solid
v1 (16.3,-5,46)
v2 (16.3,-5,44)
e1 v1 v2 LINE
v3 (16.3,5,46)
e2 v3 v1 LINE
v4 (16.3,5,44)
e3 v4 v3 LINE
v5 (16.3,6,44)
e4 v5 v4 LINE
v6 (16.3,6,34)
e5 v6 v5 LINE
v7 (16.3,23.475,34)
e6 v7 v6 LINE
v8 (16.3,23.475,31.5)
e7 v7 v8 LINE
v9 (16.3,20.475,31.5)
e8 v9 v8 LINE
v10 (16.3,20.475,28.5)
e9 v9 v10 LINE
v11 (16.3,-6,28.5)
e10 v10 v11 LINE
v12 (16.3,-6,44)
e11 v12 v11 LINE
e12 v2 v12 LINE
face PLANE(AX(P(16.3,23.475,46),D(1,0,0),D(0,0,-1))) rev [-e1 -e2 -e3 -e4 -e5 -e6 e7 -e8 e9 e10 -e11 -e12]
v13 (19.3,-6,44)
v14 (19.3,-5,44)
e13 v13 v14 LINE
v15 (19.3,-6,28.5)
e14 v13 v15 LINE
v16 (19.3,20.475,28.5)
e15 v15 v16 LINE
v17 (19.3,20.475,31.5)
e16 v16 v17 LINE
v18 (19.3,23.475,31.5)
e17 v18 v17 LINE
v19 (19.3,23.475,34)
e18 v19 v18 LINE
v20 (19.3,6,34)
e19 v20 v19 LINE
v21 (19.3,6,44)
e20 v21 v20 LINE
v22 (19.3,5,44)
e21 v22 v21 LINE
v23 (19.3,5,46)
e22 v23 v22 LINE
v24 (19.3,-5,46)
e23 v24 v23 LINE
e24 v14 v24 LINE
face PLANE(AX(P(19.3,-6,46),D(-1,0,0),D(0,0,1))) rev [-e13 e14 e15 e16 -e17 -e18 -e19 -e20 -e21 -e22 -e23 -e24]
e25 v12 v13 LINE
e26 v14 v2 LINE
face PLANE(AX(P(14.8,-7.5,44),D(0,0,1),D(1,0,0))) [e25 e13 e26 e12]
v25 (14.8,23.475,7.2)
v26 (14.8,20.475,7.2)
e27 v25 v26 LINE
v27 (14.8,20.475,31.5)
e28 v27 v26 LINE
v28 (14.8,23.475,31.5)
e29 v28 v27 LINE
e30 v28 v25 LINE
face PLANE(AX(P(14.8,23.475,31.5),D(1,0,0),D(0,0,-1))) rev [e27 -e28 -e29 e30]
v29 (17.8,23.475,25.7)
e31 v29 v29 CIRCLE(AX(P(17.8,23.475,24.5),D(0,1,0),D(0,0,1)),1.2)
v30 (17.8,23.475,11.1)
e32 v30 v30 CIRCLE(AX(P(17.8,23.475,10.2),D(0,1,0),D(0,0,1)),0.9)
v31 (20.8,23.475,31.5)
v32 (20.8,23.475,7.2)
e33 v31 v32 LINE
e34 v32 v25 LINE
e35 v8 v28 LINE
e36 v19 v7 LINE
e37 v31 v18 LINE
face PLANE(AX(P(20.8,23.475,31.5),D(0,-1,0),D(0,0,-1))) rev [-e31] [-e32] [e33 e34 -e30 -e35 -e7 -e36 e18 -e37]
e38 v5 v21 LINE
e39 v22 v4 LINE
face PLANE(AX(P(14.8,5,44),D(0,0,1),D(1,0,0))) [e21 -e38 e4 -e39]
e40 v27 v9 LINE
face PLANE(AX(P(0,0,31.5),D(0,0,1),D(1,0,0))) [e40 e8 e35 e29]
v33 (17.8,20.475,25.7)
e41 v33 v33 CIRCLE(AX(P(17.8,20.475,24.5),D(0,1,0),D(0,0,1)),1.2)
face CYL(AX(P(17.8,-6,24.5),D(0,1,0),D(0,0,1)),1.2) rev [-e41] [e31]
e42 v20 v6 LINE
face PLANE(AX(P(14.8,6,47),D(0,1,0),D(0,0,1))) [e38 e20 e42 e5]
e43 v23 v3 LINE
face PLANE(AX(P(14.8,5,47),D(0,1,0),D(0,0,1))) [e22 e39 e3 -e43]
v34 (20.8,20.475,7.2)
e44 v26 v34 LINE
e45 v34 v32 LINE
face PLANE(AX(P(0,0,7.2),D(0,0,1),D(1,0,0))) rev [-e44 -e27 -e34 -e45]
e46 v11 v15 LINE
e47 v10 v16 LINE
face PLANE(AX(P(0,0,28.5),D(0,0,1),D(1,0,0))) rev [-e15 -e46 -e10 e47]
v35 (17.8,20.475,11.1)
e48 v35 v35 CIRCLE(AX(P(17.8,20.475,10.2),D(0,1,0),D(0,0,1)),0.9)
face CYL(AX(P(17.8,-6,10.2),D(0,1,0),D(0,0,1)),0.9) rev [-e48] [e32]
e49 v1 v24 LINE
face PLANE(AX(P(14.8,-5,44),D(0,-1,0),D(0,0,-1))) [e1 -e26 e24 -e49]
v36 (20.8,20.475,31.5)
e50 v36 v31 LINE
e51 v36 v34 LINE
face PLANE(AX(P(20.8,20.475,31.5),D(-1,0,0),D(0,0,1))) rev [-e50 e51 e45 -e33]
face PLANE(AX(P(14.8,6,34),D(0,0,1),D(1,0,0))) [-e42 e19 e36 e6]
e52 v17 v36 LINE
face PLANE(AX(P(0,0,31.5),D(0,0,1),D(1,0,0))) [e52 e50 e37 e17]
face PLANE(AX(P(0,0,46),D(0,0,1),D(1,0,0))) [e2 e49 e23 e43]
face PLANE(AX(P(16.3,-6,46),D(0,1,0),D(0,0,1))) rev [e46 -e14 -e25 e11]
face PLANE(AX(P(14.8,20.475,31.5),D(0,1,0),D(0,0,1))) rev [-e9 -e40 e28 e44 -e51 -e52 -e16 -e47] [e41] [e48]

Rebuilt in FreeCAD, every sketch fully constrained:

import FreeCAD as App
import Part
import Sketcher
Q = App.Units.Quantity

doc = App.newDocument("Part")
params = doc.addObject("Spreadsheet::Sheet", "Params")
for row, (alias, value) in enumerate([
    ("sketch1_width", "6 mm"),
    ("sketch1_height", "3 mm"),
    ("pad1_length", "24.3 mm"),
    ("sketch2_width", "3 mm"),
    ("pad2_length", "17.5 mm"),
    ("sketch3_diameter", "2.4 mm"),
    ("sketch3_diameter2", "1.8 mm"),
    ("sketch4_height", "13 mm"),
    ("sketch5_height", "3 mm"),
    ("sketch5_width", "2.5 mm"),
], start=1):
    params.set(f"A{row}", alias)
    params.set(f"B{row}", "=" + value)
    params.setAlias(f"B{row}", alias)

body = doc.addObject("PartDesign::Body", "Body")

# Sketch on XY plane
sketch1 = doc.addObject("Sketcher::SketchObject", "Sketch")
body.addObject(sketch1)
sketch1.AttachmentSupport = (doc.XY_Plane, [""])
sketch1.MapMode = "FlatFace"
sketch1.AttachmentOffset = App.Placement(App.Vector(0, 0, 7.2), App.Rotation())
sketch1.addGeometry(Part.LineSegment(App.Vector(14.8, 23.5, 0), App.Vector(14.8, 20.5, 0)), False)
sketch1.addGeometry(Part.LineSegment(App.Vector(14.8, 20.5, 0), App.Vector(20.8, 20.5, 0)), False)
sketch1.addGeometry(Part.LineSegment(App.Vector(20.8, 20.5, 0), App.Vector(20.8, 23.5, 0)), False)
sketch1.addGeometry(Part.LineSegment(App.Vector(20.8, 23.5, 0), App.Vector(14.8, 23.5, 0)), False)
sketch1.addConstraint(Sketcher.Constraint("Coincident", 0, 2, 1, 1))
sketch1.addConstraint(Sketcher.Constraint("Coincident", 1, 2, 2, 1))
sketch1.addConstraint(Sketcher.Constraint("Coincident", 2, 2, 3, 1))
sketch1.addConstraint(Sketcher.Constraint("Coincident", 3, 2, 0, 1))
sketch1.addConstraint(Sketcher.Constraint("Vertical", 0))
sketch1.addConstraint(Sketcher.Constraint("Horizontal", 1))
sketch1.addConstraint(Sketcher.Constraint("Vertical", 2))
sketch1.addConstraint(Sketcher.Constraint("Horizontal", 3))
sketch1.addConstraint(Sketcher.Constraint("DistanceX", 1, 1, 1, 2, Q("6 mm")))
sketch1.addConstraint(Sketcher.Constraint("DistanceY", 0, 2, 0, 1, Q("3 mm")))
sketch1.addConstraint(Sketcher.Constraint("DistanceX", -1, 1, 0, 2, Q("14.8 mm")))
sketch1.addConstraint(Sketcher.Constraint("DistanceY", -1, 1, 0, 2, Q("20.475 mm")))
sketch1.setExpression("Constraints[8]", "Params.sketch1_width")
sketch1.setExpression("Constraints[9]", "Params.sketch1_height")
pad1 = doc.addObject("PartDesign::Pad", "Pad")
body.addObject(pad1)
pad1.Profile = sketch1
pad1.setExpression("Length", "Params.pad1_length")

# Sketch on XY plane
sketch2 = doc.addObject("Sketcher::SketchObject", "Sketch001")
body.addObject(sketch2)
sketch2.AttachmentSupport = (doc.XY_Plane, [""])
sketch2.MapMode = "FlatFace"
sketch2.AttachmentOffset = App.Placement(App.Vector(0, 0, 28.5), App.Rotation())
sketch2.addGeometry(Part.LineSegment(App.Vector(16.3, 23.5, 0), App.Vector(16.3, -6, 0)), False)
sketch2.addGeometry(Part.LineSegment(App.Vector(16.3, -6, 0), App.Vector(19.3, -6, 0)), False)
sketch2.addGeometry(Part.LineSegment(App.Vector(19.3, -6, 0), App.Vector(19.3, 23.5, 0)), False)
sketch2.addGeometry(Part.LineSegment(App.Vector(19.3, 23.5, 0), App.Vector(16.3, 23.5, 0)), False)
sketch2.addConstraint(Sketcher.Constraint("Coincident", 0, 2, 1, 1))
sketch2.addConstraint(Sketcher.Constraint("Coincident", 1, 2, 2, 1))
sketch2.addConstraint(Sketcher.Constraint("Coincident", 2, 2, 3, 1))
sketch2.addConstraint(Sketcher.Constraint("Coincident", 3, 2, 0, 1))
sketch2.addConstraint(Sketcher.Constraint("Vertical", 0))
sketch2.addConstraint(Sketcher.Constraint("Horizontal", 1))
sketch2.addConstraint(Sketcher.Constraint("Vertical", 2))
sketch2.addConstraint(Sketcher.Constraint("Horizontal", 3))
sketch2.addConstraint(Sketcher.Constraint("DistanceX", 1, 1, 1, 2, Q("3 mm")))
sketch2.addConstraint(Sketcher.Constraint("DistanceY", 0, 2, -1, 1, Q("6 mm")))
sketch2.addConstraint(Sketcher.Constraint("DistanceX", -1, 1, 0, 2, Q("16.3 mm")))
sketch2.addConstraint(Sketcher.Constraint("DistanceY", 0, 2, 0, 1, Q("29.475 mm")))
sketch2.setExpression("Constraints[8]", "Params.sketch2_width")
pad2 = doc.addObject("PartDesign::Pad", "Pad001")
body.addObject(pad2)
pad2.Profile = sketch2
pad2.setExpression("Length", "Params.pad2_length")

# Sketch on XZ plane
sketch3 = doc.addObject("Sketcher::SketchObject", "Sketch002")
body.addObject(sketch3)
sketch3.AttachmentSupport = (doc.XZ_Plane, [""])
sketch3.MapMode = "FlatFace"
sketch3.addGeometry(Part.Circle(App.Vector(17.8, 24.5, 0), App.Vector(0, 0, 1), 1.2), False)
sketch3.addGeometry(Part.Circle(App.Vector(17.8, 10.2, 0), App.Vector(0, 0, 1), 0.9), False)
sketch3.addConstraint(Sketcher.Constraint("Vertical", 0, 3, 1, 3))
sketch3.addConstraint(Sketcher.Constraint("Diameter", 0, Q("2.4 mm")))
sketch3.addConstraint(Sketcher.Constraint("Diameter", 1, Q("1.8 mm")))
sketch3.addConstraint(Sketcher.Constraint("DistanceX", -1, 1, 0, 3, Q("17.8 mm")))
sketch3.addConstraint(Sketcher.Constraint("DistanceY", -1, 1, 0, 3, Q("24.5 mm")))
sketch3.addConstraint(Sketcher.Constraint("DistanceY", -1, 1, 1, 3, Q("10.2 mm")))
sketch3.setExpression("Constraints[1]", "Params.sketch3_diameter")
sketch3.setExpression("Constraints[2]", "Params.sketch3_diameter2")
pocket1 = doc.addObject("PartDesign::Pocket", "Pocket")
body.addObject(pocket1)
pocket1.Profile = sketch3
pocket1.Type = "ThroughAll"
pocket1.Midplane = True

# Sketch on YZ plane
sketch4 = doc.addObject("Sketcher::SketchObject", "Sketch003")
body.addObject(sketch4)
sketch4.AttachmentSupport = (doc.YZ_Plane, [""])
sketch4.MapMode = "FlatFace"
sketch4.addGeometry(Part.LineSegment(App.Vector(24, 47, 0), App.Vector(6, 47, 0)), False)
sketch4.addGeometry(Part.LineSegment(App.Vector(6, 47, 0), App.Vector(6, 34, 0)), False)
sketch4.addGeometry(Part.LineSegment(App.Vector(6, 34, 0), App.Vector(24, 34, 0)), False)
sketch4.addGeometry(Part.LineSegment(App.Vector(24, 34, 0), App.Vector(24, 47, 0)), False)
sketch4.addConstraint(Sketcher.Constraint("Coincident", 0, 2, 1, 1))
sketch4.addConstraint(Sketcher.Constraint("Coincident", 1, 2, 2, 1))
sketch4.addConstraint(Sketcher.Constraint("Coincident", 2, 2, 3, 1))
sketch4.addConstraint(Sketcher.Constraint("Coincident", 3, 2, 0, 1))
sketch4.addConstraint(Sketcher.Constraint("Horizontal", 0))
sketch4.addConstraint(Sketcher.Constraint("Vertical", 1))
sketch4.addConstraint(Sketcher.Constraint("Horizontal", 2))
sketch4.addConstraint(Sketcher.Constraint("Vertical", 3))
sketch4.addConstraint(Sketcher.Constraint("DistanceY", 1, 2, 1, 1, Q("13 mm")))
sketch4.addConstraint(Sketcher.Constraint("DistanceX", -1, 1, 0, 2, Q("6 mm")))
sketch4.addConstraint(Sketcher.Constraint("DistanceY", -1, 1, 0, 2, Q("47 mm")))
sketch4.addConstraint(Sketcher.Constraint("DistanceX", 0, 2, 0, 1, Q("18.475 mm")))
sketch4.setExpression("Constraints[8]", "Params.sketch4_height")
pocket2 = doc.addObject("PartDesign::Pocket", "Pocket001")
body.addObject(pocket2)
pocket2.Profile = sketch4
pocket2.Type = "ThroughAll"
pocket2.Midplane = True

# Sketch on YZ plane
sketch5 = doc.addObject("Sketcher::SketchObject", "Sketch004")
body.addObject(sketch5)
sketch5.AttachmentSupport = (doc.YZ_Plane, [""])
sketch5.MapMode = "FlatFace"
sketch5.addGeometry(Part.LineSegment(App.Vector(-5, 47, 0), App.Vector(-7.5, 47, 0)), False)
sketch5.addGeometry(Part.LineSegment(App.Vector(-7.5, 47, 0), App.Vector(-7.5, 44, 0)), False)
sketch5.addGeometry(Part.LineSegment(App.Vector(-7.5, 44, 0), App.Vector(-5, 44, 0)), False)
sketch5.addGeometry(Part.LineSegment(App.Vector(-5, 44, 0), App.Vector(-5, 47, 0)), False)
sketch5.addGeometry(Part.LineSegment(App.Vector(7.5, 47, 0), App.Vector(5, 47, 0)), False)
sketch5.addGeometry(Part.LineSegment(App.Vector(5, 47, 0), App.Vector(5, 44, 0)), False)
sketch5.addGeometry(Part.LineSegment(App.Vector(5, 44, 0), App.Vector(7.5, 44, 0)), False)
sketch5.addGeometry(Part.LineSegment(App.Vector(7.5, 44, 0), App.Vector(7.5, 47, 0)), False)
sketch5.addConstraint(Sketcher.Constraint("Coincident", 0, 2, 1, 1))
sketch5.addConstraint(Sketcher.Constraint("Coincident", 1, 2, 2, 1))
sketch5.addConstraint(Sketcher.Constraint("Coincident", 2, 2, 3, 1))
sketch5.addConstraint(Sketcher.Constraint("Coincident", 3, 2, 0, 1))
sketch5.addConstraint(Sketcher.Constraint("Coincident", 4, 2, 5, 1))
sketch5.addConstraint(Sketcher.Constraint("Coincident", 5, 2, 6, 1))
sketch5.addConstraint(Sketcher.Constraint("Coincident", 6, 2, 7, 1))
sketch5.addConstraint(Sketcher.Constraint("Coincident", 7, 2, 4, 1))
sketch5.addConstraint(Sketcher.Constraint("Horizontal", 0))
sketch5.addConstraint(Sketcher.Constraint("Vertical", 1))
sketch5.addConstraint(Sketcher.Constraint("Horizontal", 2))
sketch5.addConstraint(Sketcher.Constraint("Vertical", 3))
sketch5.addConstraint(Sketcher.Constraint("Horizontal", 4))
sketch5.addConstraint(Sketcher.Constraint("Vertical", 5))
sketch5.addConstraint(Sketcher.Constraint("Horizontal", 6))
sketch5.addConstraint(Sketcher.Constraint("Vertical", 7))
sketch5.addConstraint(Sketcher.Constraint("Symmetric", 3, 2, 4, 2, -2))
sketch5.addConstraint(Sketcher.Constraint("Symmetric", 1, 2, 6, 2, -2))
sketch5.addConstraint(Sketcher.Constraint("DistanceY", 1, 2, 1, 1, Q("3 mm")))
sketch5.addConstraint(Sketcher.Constraint("DistanceX", 0, 2, 0, 1, Q("2.5 mm")))
sketch5.addConstraint(Sketcher.Constraint("DistanceY", -1, 1, 0, 2, Q("47 mm")))
sketch5.addConstraint(Sketcher.Constraint("DistanceX", 2, 2, -1, 1, Q("5 mm")))
sketch5.setExpression("Constraints[18]", "Params.sketch5_height")
sketch5.setExpression("Constraints[19]", "Params.sketch5_width")
pocket3 = doc.addObject("PartDesign::Pocket", "Pocket002")
body.addObject(pocket3)
pocket3.Profile = sketch5
pocket3.Type = "ThroughAll"
pocket3.Midplane = True

doc.recompute()
